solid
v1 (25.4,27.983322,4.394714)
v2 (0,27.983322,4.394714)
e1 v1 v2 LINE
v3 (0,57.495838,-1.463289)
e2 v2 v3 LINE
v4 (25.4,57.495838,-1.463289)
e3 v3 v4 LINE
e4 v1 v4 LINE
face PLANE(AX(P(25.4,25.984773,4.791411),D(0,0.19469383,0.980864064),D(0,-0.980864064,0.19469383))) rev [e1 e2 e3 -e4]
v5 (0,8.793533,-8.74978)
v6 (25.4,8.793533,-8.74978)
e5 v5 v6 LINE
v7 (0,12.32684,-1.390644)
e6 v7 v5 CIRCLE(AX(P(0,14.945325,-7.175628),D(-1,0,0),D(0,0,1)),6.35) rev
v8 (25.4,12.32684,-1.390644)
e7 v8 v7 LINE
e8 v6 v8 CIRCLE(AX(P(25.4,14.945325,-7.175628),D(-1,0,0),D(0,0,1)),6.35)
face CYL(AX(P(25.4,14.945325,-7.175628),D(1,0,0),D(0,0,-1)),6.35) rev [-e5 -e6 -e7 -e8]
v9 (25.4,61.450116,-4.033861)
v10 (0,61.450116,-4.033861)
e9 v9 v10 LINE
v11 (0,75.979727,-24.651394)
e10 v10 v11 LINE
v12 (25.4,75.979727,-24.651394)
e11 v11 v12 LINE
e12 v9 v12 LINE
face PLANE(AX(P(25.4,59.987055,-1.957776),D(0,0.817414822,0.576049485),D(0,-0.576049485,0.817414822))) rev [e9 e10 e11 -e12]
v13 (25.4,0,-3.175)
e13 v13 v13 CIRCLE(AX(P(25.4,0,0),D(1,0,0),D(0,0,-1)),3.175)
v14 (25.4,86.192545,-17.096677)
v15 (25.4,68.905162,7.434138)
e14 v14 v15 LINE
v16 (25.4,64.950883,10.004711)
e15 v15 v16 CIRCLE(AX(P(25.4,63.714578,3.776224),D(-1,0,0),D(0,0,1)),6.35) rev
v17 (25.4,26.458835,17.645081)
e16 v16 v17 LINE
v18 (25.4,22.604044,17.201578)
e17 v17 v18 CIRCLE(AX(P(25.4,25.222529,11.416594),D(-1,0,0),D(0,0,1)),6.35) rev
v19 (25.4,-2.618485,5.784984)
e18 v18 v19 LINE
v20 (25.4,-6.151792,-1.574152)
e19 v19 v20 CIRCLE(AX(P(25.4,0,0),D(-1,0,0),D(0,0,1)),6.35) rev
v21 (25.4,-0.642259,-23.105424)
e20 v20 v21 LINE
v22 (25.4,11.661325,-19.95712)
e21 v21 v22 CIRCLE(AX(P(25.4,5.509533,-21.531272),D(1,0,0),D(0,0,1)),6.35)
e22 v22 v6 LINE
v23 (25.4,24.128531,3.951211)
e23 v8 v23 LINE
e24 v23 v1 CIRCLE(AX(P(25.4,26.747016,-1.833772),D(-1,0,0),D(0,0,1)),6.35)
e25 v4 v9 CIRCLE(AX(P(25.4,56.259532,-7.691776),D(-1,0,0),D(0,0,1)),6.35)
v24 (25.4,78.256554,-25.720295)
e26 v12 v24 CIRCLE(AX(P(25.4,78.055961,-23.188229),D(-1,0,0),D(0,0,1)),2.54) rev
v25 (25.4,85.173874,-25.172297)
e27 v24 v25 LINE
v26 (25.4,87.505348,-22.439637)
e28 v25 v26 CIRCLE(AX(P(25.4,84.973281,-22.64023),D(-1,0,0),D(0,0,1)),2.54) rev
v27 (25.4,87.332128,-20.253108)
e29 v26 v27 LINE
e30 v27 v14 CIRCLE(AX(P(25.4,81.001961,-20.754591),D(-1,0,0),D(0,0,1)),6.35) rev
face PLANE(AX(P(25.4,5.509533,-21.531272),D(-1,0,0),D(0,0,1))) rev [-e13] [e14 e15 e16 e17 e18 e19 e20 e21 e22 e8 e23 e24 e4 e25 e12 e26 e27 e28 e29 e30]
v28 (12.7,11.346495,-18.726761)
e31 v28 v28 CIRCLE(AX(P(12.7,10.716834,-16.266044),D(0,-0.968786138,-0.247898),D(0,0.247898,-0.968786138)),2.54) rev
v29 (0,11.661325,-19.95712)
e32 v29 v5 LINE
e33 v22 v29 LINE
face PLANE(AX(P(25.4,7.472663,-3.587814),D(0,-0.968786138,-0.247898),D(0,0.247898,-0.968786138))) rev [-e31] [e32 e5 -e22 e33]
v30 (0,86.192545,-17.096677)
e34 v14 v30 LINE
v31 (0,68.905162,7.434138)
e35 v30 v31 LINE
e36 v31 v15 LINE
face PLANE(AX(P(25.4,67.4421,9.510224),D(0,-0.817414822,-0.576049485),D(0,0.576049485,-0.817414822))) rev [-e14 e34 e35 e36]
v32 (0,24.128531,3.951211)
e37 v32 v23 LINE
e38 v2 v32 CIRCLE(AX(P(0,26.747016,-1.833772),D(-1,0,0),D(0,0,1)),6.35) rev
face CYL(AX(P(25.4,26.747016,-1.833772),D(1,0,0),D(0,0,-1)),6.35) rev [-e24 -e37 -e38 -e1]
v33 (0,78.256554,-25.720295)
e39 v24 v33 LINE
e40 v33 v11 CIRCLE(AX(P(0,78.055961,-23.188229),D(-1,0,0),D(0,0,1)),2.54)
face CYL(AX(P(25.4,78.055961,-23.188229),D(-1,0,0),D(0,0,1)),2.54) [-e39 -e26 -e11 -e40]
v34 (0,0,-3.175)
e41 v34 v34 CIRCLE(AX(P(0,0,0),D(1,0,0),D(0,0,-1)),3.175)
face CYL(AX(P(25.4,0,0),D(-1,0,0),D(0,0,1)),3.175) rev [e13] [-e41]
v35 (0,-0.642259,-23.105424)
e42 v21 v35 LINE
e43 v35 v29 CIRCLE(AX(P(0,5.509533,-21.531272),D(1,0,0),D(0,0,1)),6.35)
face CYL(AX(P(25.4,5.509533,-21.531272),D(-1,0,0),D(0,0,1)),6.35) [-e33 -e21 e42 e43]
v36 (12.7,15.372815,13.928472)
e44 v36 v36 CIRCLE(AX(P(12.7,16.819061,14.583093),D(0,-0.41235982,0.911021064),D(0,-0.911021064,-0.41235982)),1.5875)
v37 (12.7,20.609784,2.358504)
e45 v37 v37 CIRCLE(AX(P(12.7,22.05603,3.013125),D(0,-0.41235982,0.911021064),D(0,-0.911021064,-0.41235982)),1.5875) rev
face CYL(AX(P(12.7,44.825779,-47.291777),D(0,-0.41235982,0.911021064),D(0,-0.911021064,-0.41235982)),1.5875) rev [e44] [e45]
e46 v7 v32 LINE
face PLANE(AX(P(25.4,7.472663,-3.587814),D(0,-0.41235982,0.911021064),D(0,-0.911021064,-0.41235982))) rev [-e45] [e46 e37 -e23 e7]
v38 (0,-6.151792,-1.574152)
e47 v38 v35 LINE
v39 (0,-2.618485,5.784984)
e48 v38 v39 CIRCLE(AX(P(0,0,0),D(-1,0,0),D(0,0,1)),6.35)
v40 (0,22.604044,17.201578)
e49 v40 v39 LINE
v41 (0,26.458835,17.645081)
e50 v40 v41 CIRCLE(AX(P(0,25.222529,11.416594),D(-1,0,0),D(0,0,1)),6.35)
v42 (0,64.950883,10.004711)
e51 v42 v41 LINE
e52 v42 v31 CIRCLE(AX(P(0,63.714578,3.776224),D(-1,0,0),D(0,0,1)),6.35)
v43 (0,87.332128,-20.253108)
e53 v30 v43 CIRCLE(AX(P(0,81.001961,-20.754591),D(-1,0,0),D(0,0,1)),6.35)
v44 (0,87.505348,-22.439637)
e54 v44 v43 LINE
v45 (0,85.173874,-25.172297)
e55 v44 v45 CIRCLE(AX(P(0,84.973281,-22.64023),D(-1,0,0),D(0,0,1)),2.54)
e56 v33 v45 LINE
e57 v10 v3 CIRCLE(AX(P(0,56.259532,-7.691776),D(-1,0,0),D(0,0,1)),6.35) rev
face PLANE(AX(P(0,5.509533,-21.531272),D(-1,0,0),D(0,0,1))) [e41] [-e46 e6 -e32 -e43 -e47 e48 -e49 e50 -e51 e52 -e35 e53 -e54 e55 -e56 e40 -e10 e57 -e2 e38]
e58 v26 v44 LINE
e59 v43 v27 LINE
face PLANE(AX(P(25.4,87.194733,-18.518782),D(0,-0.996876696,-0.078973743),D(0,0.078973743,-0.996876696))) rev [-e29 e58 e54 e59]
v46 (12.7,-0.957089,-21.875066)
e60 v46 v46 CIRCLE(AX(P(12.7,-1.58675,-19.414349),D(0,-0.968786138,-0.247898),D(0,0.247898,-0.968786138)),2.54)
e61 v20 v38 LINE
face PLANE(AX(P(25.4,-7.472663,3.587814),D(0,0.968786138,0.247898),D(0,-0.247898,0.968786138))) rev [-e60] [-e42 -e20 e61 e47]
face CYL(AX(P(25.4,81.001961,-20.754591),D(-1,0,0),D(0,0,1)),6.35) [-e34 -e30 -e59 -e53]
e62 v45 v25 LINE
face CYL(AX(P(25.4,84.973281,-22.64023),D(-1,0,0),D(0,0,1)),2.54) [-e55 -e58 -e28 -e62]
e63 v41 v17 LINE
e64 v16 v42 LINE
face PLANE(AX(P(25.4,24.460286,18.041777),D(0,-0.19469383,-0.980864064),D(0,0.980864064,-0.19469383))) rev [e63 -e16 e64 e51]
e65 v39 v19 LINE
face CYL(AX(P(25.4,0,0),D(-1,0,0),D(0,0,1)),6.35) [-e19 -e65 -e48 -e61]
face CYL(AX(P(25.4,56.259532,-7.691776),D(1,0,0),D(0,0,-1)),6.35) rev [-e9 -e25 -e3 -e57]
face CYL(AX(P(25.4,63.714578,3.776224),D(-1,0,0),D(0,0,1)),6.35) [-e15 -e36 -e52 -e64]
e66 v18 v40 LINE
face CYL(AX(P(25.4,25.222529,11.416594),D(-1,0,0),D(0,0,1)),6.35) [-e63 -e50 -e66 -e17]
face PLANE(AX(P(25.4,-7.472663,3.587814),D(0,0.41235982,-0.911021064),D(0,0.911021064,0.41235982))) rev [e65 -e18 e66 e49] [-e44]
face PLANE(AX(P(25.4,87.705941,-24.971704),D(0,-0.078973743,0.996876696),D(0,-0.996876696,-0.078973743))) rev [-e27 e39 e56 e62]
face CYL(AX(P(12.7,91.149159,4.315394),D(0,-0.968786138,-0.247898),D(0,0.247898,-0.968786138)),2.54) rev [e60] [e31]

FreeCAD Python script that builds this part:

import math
import FreeCAD as App
import Part
import Sketcher

V = App.Vector
Q = App.Units.Quantity


def edges_at(feature, points):
    """Names of the edges that pass closest to the given points."""
    edges = feature.Shape.Edges
    near = lambda p: min(range(len(edges)), key=lambda i: edges[i].distToShape(Part.Vertex(*p))[0])
    return sorted({f"Edge{near(p) + 1}" for p in points})

doc = App.newDocument("Part")
params = doc.addObject("Spreadsheet::Sheet", "Params")
for row, (alias, value) in enumerate([
    ("sketch1_diameter", "0.25 in"),
    ("sketch1_radius", "0.25 in"),
    ("pad1_length", "1 in"),
    ("fillet_radius", "0.25 in"),
    ("sketch2_diameter", "0.2 in"),
    ("sketch3_diameter", "0.125 in"),
    ("fillet2_radius", "0.1 in"),
], start=1):
    params.set(f"A{row}", alias)
    params.set(f"B{row}", "=" + value)
    params.setAlias(f"B{row}", alias)

body = doc.addObject("PartDesign::Body", "Body")

# Sketch on YZ plane
sketch1 = body.newObject("Sketcher::SketchObject", "Sketch")
sketch1.AttachmentSupport = (doc.getObject("YZ_Plane"), [""])
sketch1.MapMode = "FlatFace"
sketch1.addGeometry([
    Part.LineSegment(V(87.2, -18.5, 0), V(67.4, 9.5, 0)),  # 0
    Part.LineSegment(V(67.4, 9.5, 0), V(24.5, 18, 0)),  # 1
    Part.LineSegment(V(24.5, 18, 0), V(-7.5, 3.6, 0)),  # 2
    Part.LineSegment(V(-7.5, 3.6, 0), V(-0.6, -23.1, 0)),  # 3
    Part.ArcOfCircle(Part.Circle(V(5.5, -21.5, 0), V(0, 0, 1), 6.3), math.radians(-166), math.radians(14)),  # 4
    Part.LineSegment(V(11.7, -20, 0), V(7.5, -3.6, 0)),  # 5
    Part.LineSegment(V(7.5, -3.6, 0), V(26, 4.8, 0)),  # 6
    Part.LineSegment(V(26, 4.8, 0), V(60, -2, 0)),  # 7
    Part.LineSegment(V(60, -2, 0), V(76.8, -25.8, 0)),  # 8
    Part.LineSegment(V(76.8, -25.8, 0), V(87.7, -25, 0)),  # 9
    Part.LineSegment(V(87.7, -25, 0), V(87.2, -18.5, 0)),  # 10
    Part.Circle(V(0, 0, 0), V(0, 0, 1), 3.2),  # 11
], False)
sketch1.addConstraint([
    Sketcher.Constraint("Coincident", 0, 2, 1, 1),
    Sketcher.Constraint("Coincident", 1, 2, 2, 1),
    Sketcher.Constraint("Coincident", 2, 2, 3, 1),
    Sketcher.Constraint("Tangent", 3, 2, 4, 1),
    Sketcher.Constraint("Tangent", 4, 2, 5, 1),
    Sketcher.Constraint("Coincident", 5, 2, 6, 1),
    Sketcher.Constraint("Coincident", 6, 2, 7, 1),
    Sketcher.Constraint("Coincident", 7, 2, 8, 1),
    Sketcher.Constraint("Coincident", 8, 2, 9, 1),
    Sketcher.Constraint("Coincident", 9, 2, 10, 1),
    Sketcher.Constraint("Coincident", 10, 2, 0, 1),
    Sketcher.Constraint("Coincident", 11, 3, -1, 1),
    Sketcher.Constraint("Symmetric", 2, 2, 5, 2, -1, 1),
    Sketcher.Constraint("Parallel", 3, 5),
    Sketcher.Constraint("Parallel", 2, 6),
    Sketcher.Constraint("Parallel", 1, 7),
    Sketcher.Constraint("Parallel", 0, 8),
    Sketcher.Constraint("Perpendicular", 9, 10),
    Sketcher.Constraint("Diameter", 11, Q("0.25 in")),
    Sketcher.Constraint("Radius", 4, Q("0.25 in")),
    Sketcher.Constraint("DistanceX", 2, 2, 0, 2, Q("2.9494001 in")),
    Sketcher.Constraint("DistanceX", -1, 1, 0, 2, 67.4421),
    Sketcher.Constraint("DistanceY", 3, 2, 1, 2, 41.147201),
    Sketcher.Constraint("DistanceY", 7, 2, 0, 2, 11.468),
    Sketcher.Constraint("Distance", 0, 34.289819),
    Sketcher.Constraint("Distance", 1, 43.820358),
    Sketcher.Constraint("Distance", 7, 34.665642),
    Sketcher.Constraint("Distance", 8, 29.210181),
    Sketcher.Constraint("Distance", 10, 6.473139),
    Sketcher.Constraint("DistanceY", 4, 3, -1, 1, 21.531272),
    Sketcher.Constraint("DistanceX", 3, 2, -1, 1, 0.642259),
    Sketcher.Constraint("DistanceY", -1, 1, 6, 2, 4.791411),
    Sketcher.Constraint("DistanceY", 8, 2, -1, 1, 25.834611),
])
sketch1.setExpression("Constraints[18]", "Params.sketch1_diameter")
sketch1.setExpression("Constraints[19]", "Params.sketch1_radius")
pad1 = body.newObject("PartDesign::Pad", "Pad")
pad1.Profile = sketch1
pad1.setExpression("Length", "Params.pad1_length")
doc.recompute()

fillet = body.newObject("PartDesign::Fillet", "Fillet")
fillet.Base = (pad1, edges_at(pad1, [
    (12.7, 67.442, 9.51),
    (12.7, 87.195, -18.519),
    (12.7, 59.987, -1.958),
    (12.7, 25.985, 4.791),
    (12.7, 7.473, -3.588),
    (12.7, -7.473, 3.588),
    (12.7, 24.46, 18.042),
]))
fillet.setExpression("Radius", "Params.fillet_radius")

# Sketch on an angled plane
sketch2 = body.newObject("Sketcher::SketchObject", "Sketch001")
sketch2.Placement = App.Placement(V(0, -6.151792, -1.574152), App.Rotation(V(1, 0, 0), V(0, -0.247898, 0.968786138), V(0, -0.968786138, -0.247898), "ZXY"))
sketch2.addGeometry(Part.Circle(V(12.7, -18.4, 0), V(0, 0, 1), 2.5), False)
sketch2.addConstraint([
    Sketcher.Constraint("Diameter", 0, Q("0.2 in")),
    Sketcher.Constraint("DistanceX", -1, 1, 0, 3, Q("0.5 in")),
    Sketcher.Constraint("DistanceY", 0, 3, -1, 1, Q("0.725 in")),
])
sketch2.setExpression("Constraints[0]", "Params.sketch2_diameter")
pocket1 = body.newObject("PartDesign::Pocket", "Pocket")
pocket1.Profile = sketch2
pocket1.Type = "UpToFirst"

# Sketch on an angled plane
sketch3 = body.newObject("Sketcher::SketchObject", "Sketch002")
sketch3.Placement = App.Placement(V(0, -2.618485, 5.784984), App.Rotation(V(1, 0, 0), V(0, 0.911021064, 0.41235982), V(0, -0.41235982, 0.911021064), "ZXY"))
sketch3.addGeometry(Part.Circle(V(12.7, 21.3, 0), V(0, 0, 1), 1.6), False)
sketch3.addConstraint([
    Sketcher.Constraint("Diameter", 0, Q("0.125 in")),
    Sketcher.Constraint("DistanceX", -1, 1, 0, 3, Q("0.5 in")),
    Sketcher.Constraint("DistanceY", -1, 1, 0, 3, Q("0.84 in")),
])
sketch3.setExpression("Constraints[0]", "Params.sketch3_diameter")
pocket2 = body.newObject("PartDesign::Pocket", "Pocket001")
pocket2.Profile = sketch3
pocket2.Type = "UpToFirst"
doc.recompute()

fillet2 = body.newObject("PartDesign::Fillet", "Fillet001")
fillet2.Base = (pocket2, edges_at(pocket2, [(12.7, 87.706, -24.972), (12.7, 76.814, -25.835)]))
fillet2.setExpression("Radius", "Params.fillet2_radius")

doc.recompute()
